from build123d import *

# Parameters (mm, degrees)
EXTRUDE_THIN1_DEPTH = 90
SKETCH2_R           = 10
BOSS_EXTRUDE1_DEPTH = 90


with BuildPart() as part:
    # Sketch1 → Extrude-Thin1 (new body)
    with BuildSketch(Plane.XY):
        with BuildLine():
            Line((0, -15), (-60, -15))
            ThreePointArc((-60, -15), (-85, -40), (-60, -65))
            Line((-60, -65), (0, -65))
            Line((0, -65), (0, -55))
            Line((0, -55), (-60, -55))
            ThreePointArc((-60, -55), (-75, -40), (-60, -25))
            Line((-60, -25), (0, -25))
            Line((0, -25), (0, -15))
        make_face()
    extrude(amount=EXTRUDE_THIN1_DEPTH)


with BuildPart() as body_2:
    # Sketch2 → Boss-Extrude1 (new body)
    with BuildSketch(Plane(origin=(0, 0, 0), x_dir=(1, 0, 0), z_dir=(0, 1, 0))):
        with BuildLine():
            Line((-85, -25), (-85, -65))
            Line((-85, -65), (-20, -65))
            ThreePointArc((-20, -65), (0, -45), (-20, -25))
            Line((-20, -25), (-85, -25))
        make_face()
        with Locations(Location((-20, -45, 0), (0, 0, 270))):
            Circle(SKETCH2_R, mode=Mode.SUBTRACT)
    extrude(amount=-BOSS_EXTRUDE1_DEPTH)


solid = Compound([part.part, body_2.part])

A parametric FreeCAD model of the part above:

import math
import FreeCAD as App
import Part
import Sketcher

V = App.Vector

doc = App.newDocument("Part")
body = doc.addObject("PartDesign::Body", "Body")

# Sketch on XY plane
sketch1 = body.newObject("Sketcher::SketchObject", "Sketch")
sketch1.AttachmentSupport = (doc.getObject("XY_Plane"), [""])
sketch1.MapMode = "FlatFace"
sketch1.addGeometry([
    Part.LineSegment(V(0, -15, 0), V(-60, -15, 0)),  # 0
    Part.ArcOfCircle(Part.Circle(V(-60, -40, 0), V(0, 0, 1), 25), math.radians(90), math.radians(270)),  # 1
    Part.LineSegment(V(-60, -65, 0), V(0, -65, 0)),  # 2
    Part.LineSegment(V(0, -65, 0), V(0, -55, 0)),  # 3
    Part.LineSegment(V(0, -55, 0), V(-60, -55, 0)),  # 4
    Part.ArcOfCircle(Part.Circle(V(-60, -40, 0), V(0, 0, 1), 15), math.radians(90), math.radians(270)),  # 5
    Part.LineSegment(V(-60, -25, 0), V(0, -25, 0)),  # 6
    Part.LineSegment(V(0, -25, 0), V(0, -15, 0)),  # 7
], False)
sketch1.addConstraint([
    Sketcher.Constraint("Tangent", 0, 2, 1, 1),
    Sketcher.Constraint("Tangent", 1, 2, 2, 1),
    Sketcher.Constraint("Coincident", 2, 2, 3, 1),
    Sketcher.Constraint("Coincident", 3, 2, 4, 1),
    Sketcher.Constraint("Tangent", 4, 2, 5, 2),
    Sketcher.Constraint("Tangent", 5, 1, 6, 1),
    Sketcher.Constraint("Coincident", 6, 2, 7, 1),
    Sketcher.Constraint("Coincident", 7, 2, 0, 1),
    Sketcher.Constraint("Horizontal", 0),
    Sketcher.Constraint("Horizontal", 2),
    Sketcher.Constraint("Vertical", 3),
    Sketcher.Constraint("Horizontal", 4),
    Sketcher.Constraint("Horizontal", 6),
    Sketcher.Constraint("Vertical", 7),
    Sketcher.Constraint("Coincident", 5, 3, 1, 3),
    Sketcher.Constraint("PointOnObject", 2, 2, -2),
    Sketcher.Constraint("PointOnObject", 6, 2, -2),
    Sketcher.Constraint("Radius", 1, 25.0),
    Sketcher.Constraint("Radius", 5, 15.0),
    Sketcher.Constraint("DistanceX", 0, 2, 0, 1, 60.0),
    Sketcher.Constraint("DistanceY", 1, 3, -1, 1, 40.0),
])
pad1 = body.newObject("PartDesign::Pad", "Pad")
pad1.Profile = sketch1
pad1.Length = 90
body2 = doc.addObject("PartDesign::Body", "Body001")

# Sketch on XZ plane
sketch2 = body2.newObject("Sketcher::SketchObject", "Sketch001")
sketch2.AttachmentSupport = (doc.getObject("XZ_Plane001"), [""])
sketch2.MapMode = "FlatFace"
sketch2.addGeometry([
    Part.LineSegment(V(-85, 25, 0), V(-85, 65, 0)),  # 0
    Part.LineSegment(V(-85, 65, 0), V(-20, 65, 0)),  # 1
    Part.ArcOfCircle(Part.Circle(V(-20, 45, 0), V(0, 0, 1), 20), math.radians(-90), math.radians(90)),  # 2
    Part.LineSegment(V(-20, 25, 0), V(-85, 25, 0)),  # 3
    Part.Circle(V(-20, 45, 0), V(0, 0, 1), 10),  # 4
], False)
sketch2.addConstraint([
    Sketcher.Constraint("Coincident", 0, 2, 1, 1),
    Sketcher.Constraint("Tangent", 1, 2, 2, 2),
    Sketcher.Constraint("Tangent", 2, 1, 3, 1),
    Sketcher.Constraint("Coincident", 3, 2, 0, 1),
    Sketcher.Constraint("Vertical", 0),
    Sketcher.Constraint("Horizontal", 1),
    Sketcher.Constraint("Horizontal", 3),
    Sketcher.Constraint("Coincident", 4, 3, 2, 3),
    Sketcher.Constraint("Diameter", 4, 20.0),
    Sketcher.Constraint("Radius", 2, 20.0),
    Sketcher.Constraint("DistanceX", 1, 1, 1, 2, 65.0),
    Sketcher.Constraint("DistanceX", 2, 3, -1, 1, 20.0),
    Sketcher.Constraint("DistanceY", -1, 1, 2, 3, 45.0),
])
pad2 = body2.newObject("PartDesign::Pad", "Pad001")
pad2.Profile = sketch2
pad2.Length = 90

doc.recompute()
